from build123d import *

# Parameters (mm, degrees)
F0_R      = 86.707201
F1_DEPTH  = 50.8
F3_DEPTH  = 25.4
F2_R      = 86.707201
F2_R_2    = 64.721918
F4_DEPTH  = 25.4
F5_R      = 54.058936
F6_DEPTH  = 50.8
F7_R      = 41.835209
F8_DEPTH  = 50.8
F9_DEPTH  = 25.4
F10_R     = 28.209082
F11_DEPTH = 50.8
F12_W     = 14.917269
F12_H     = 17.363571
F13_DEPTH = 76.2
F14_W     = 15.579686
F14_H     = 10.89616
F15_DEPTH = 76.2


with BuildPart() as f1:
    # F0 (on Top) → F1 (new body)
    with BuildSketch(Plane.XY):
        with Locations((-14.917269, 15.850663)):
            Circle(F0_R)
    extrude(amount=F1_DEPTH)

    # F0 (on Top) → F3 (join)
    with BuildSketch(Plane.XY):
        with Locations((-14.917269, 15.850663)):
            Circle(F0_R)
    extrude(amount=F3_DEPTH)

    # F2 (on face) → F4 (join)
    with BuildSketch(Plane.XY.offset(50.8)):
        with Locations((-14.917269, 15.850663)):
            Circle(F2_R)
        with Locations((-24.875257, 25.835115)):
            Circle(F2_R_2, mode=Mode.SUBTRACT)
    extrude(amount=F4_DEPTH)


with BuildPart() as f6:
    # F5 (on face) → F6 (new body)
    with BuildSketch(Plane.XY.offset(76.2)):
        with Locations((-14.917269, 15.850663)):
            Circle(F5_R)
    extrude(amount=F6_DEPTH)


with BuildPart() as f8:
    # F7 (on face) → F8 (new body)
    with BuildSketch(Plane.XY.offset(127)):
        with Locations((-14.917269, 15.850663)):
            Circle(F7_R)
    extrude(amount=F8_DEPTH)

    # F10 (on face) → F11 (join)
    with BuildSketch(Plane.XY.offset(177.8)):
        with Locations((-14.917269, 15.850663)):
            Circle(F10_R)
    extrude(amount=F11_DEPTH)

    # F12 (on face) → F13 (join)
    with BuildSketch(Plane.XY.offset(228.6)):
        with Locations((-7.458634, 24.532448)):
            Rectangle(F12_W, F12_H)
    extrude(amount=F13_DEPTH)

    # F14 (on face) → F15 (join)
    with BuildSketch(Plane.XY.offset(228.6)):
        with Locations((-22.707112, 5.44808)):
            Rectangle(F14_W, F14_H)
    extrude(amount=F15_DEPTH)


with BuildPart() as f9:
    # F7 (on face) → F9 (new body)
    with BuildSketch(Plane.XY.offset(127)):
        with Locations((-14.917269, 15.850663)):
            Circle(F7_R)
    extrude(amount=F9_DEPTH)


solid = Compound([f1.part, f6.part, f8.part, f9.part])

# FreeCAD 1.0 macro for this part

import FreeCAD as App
import Part
import Sketcher

V = App.Vector
Q = App.Units.Quantity


def add_polygon(sketch, points):
    """Adds a closed chain of lines whose ends are joined by coincident constraints."""
    first, n = sketch.GeometryCount, len(points)
    for a, b in zip(points, points[1:] + points[:1]):
        sketch.addGeometry(Part.LineSegment(App.Vector(*a, 0), App.Vector(*b, 0)), False)
    for i in range(n):
        sketch.addConstraint(Sketcher.Constraint("Coincident", first + i, 2, first + (i + 1) % n, 1))

doc = App.newDocument("Part")
body = doc.addObject("PartDesign::Body", "Body")

# Sketch on XY plane
sketch1 = body.newObject("Sketcher::SketchObject", "Sketch")
sketch1.AttachmentSupport = (doc.getObject("XY_Plane"), [""])
sketch1.MapMode = "FlatFace"
sketch1.addGeometry(Part.Circle(V(-15, 16, 0), V(0, 0, 1), 87), False)
sketch1.addConstraint([
    Sketcher.Constraint("Diameter", 0, 173.414402),
    Sketcher.Constraint("DistanceX", 0, 3, -1, 1, 14.917269),
    Sketcher.Constraint("DistanceY", -1, 1, 0, 3, 15.850663),
])
pad1 = body.newObject("PartDesign::Pad", "Pad")
pad1.Profile = sketch1
pad1.Length = Q("2 in")

# Sketch on XY plane
sketch2 = body.newObject("Sketcher::SketchObject", "Sketch001")
sketch2.AttachmentSupport = (doc.getObject("XY_Plane"), [""])
sketch2.MapMode = "FlatFace"
sketch2.addGeometry(Part.Circle(V(-15, 16, 0), V(0, 0, 1), 87), False)
sketch2.addConstraint([
    Sketcher.Constraint("Diameter", 0, 173.414402),
    Sketcher.Constraint("DistanceX", 0, 3, -1, 1, 14.917269),
    Sketcher.Constraint("DistanceY", -1, 1, 0, 3, 15.850663),
])
pad2 = body.newObject("PartDesign::Pad", "Pad001")
pad2.Profile = sketch2
pad2.Length = Q("1 in")

# Sketch on XY plane
sketch3 = body.newObject("Sketcher::SketchObject", "Sketch002")
sketch3.AttachmentSupport = (doc.getObject("XY_Plane"), [""])
sketch3.MapMode = "FlatFace"
sketch3.AttachmentOffset = App.Placement(V(0, 0, 2 * 25.4), App.Rotation())
sketch3.addGeometry([
    Part.Circle(V(-15, 16, 0), V(0, 0, 1), 87),
    Part.Circle(V(-25, 26, 0), V(0, 0, 1), 65),
], False)
sketch3.addConstraint([
    Sketcher.Constraint("Diameter", 0, 173.414402),
    Sketcher.Constraint("Diameter", 1, 129.443836),
    Sketcher.Constraint("DistanceX", 0, 3, -1, 1, 14.917269),
    Sketcher.Constraint("DistanceX", 1, 3, 0, 3, 9.957988),
    Sketcher.Constraint("DistanceY", 0, 3, 1, 3, 9.984452),
    Sketcher.Constraint("DistanceY", -1, 1, 0, 3, 15.850663),
])
pad3 = body.newObject("PartDesign::Pad", "Pad002")
pad3.Profile = sketch3
pad3.Length = Q("1 in")
body2 = doc.addObject("PartDesign::Body", "Body001")

# Sketch on XY plane
sketch4 = body2.newObject("Sketcher::SketchObject", "Sketch003")
sketch4.AttachmentSupport = (doc.getObject("XY_Plane001"), [""])
sketch4.MapMode = "FlatFace"
sketch4.AttachmentOffset = App.Placement(V(0, 0, 3 * 25.4), App.Rotation())
sketch4.addGeometry(Part.Circle(V(-15, 16, 0), V(0, 0, 1), 54), False)
sketch4.addConstraint([
    Sketcher.Constraint("Diameter", 0, 108.117872),
    Sketcher.Constraint("DistanceX", 0, 3, -1, 1, 14.917269),
    Sketcher.Constraint("DistanceY", -1, 1, 0, 3, 15.850663),
])
pad4 = body2.newObject("PartDesign::Pad", "Pad003")
pad4.Profile = sketch4
pad4.Length = Q("2 in")
body3 = doc.addObject("PartDesign::Body", "Body002")

# Sketch on XY plane
sketch5 = body3.newObject("Sketcher::SketchObject", "Sketch004")
sketch5.AttachmentSupport = (doc.getObject("XY_Plane002"), [""])
sketch5.MapMode = "FlatFace"
sketch5.AttachmentOffset = App.Placement(V(0, 0, 5 * 25.4), App.Rotation())
sketch5.addGeometry(Part.Circle(V(-15, 16, 0), V(0, 0, 1), 42), False)
sketch5.addConstraint([
    Sketcher.Constraint("Diameter", 0, 83.670418),
    Sketcher.Constraint("DistanceX", 0, 3, -1, 1, 14.917269),
    Sketcher.Constraint("DistanceY", -1, 1, 0, 3, 15.850663),
])
pad5 = body3.newObject("PartDesign::Pad", "Pad004")
pad5.Profile = sketch5
pad5.Length = Q("2 in")

# Sketch on XY plane
sketch6 = body3.newObject("Sketcher::SketchObject", "Sketch005")
sketch6.AttachmentSupport = (doc.getObject("XY_Plane002"), [""])
sketch6.MapMode = "FlatFace"
sketch6.AttachmentOffset = App.Placement(V(0, 0, 7 * 25.4), App.Rotation())
sketch6.addGeometry(Part.Circle(V(-15, 16, 0), V(0, 0, 1), 28), False)
sketch6.addConstraint([
    Sketcher.Constraint("Diameter", 0, 56.418164),
    Sketcher.Constraint("DistanceX", 0, 3, -1, 1, 14.917269),
    Sketcher.Constraint("DistanceY", -1, 1, 0, 3, 15.850663),
])
pad6 = body3.newObject("PartDesign::Pad", "Pad005")
pad6.Profile = sketch6
pad6.Length = Q("2 in")

# Sketch on XY plane
sketch7 = body3.newObject("Sketcher::SketchObject", "Sketch006")
sketch7.AttachmentSupport = (doc.getObject("XY_Plane002"), [""])
sketch7.MapMode = "FlatFace"
sketch7.AttachmentOffset = App.Placement(V(0, 0, 9 * 25.4), App.Rotation())
add_polygon(sketch7, [(-15, 33), (-15, 16), (0, 16), (0, 33)])  # lines 0-3
sketch7.addConstraint([
    Sketcher.Constraint("Vertical", 0),
    Sketcher.Constraint("Horizontal", 1),
    Sketcher.Constraint("Vertical", 2),
    Sketcher.Constraint("Horizontal", 3),
    Sketcher.Constraint("PointOnObject", 1, 2, -2),
    Sketcher.Constraint("DistanceX", 1, 1, 1, 2, 14.917269),
    Sketcher.Constraint("DistanceY", 0, 2, 0, 1, 17.363571),
    Sketcher.Constraint("DistanceY", -1, 1, 0, 2, 15.850663),
])
pad7 = body3.newObject("PartDesign::Pad", "Pad006")
pad7.Profile = sketch7
pad7.Length = Q("3 in")

# Sketch on XY plane
sketch8 = body3.newObject("Sketcher::SketchObject", "Sketch007")
sketch8.AttachmentSupport = (doc.getObject("XY_Plane002"), [""])
sketch8.MapMode = "FlatFace"
sketch8.AttachmentOffset = App.Placement(V(0, 0, 9 * 25.4), App.Rotation())
add_polygon(sketch8, [(-30, 11), (-30, 0), (-15, 0), (-15, 11)])  # lines 0-3
sketch8.addConstraint([
    Sketcher.Constraint("Vertical", 0),
    Sketcher.Constraint("Horizontal", 1),
    Sketcher.Constraint("Vertical", 2),
    Sketcher.Constraint("Horizontal", 3),
    Sketcher.Constraint("PointOnObject", 0, 2, -1),
    Sketcher.Constraint("DistanceY", 0, 2, 0, 1, 10.89616),
    Sketcher.Constraint("DistanceX", 1, 1, 1, 2, 15.579686),
    Sketcher.Constraint("DistanceX", 1, 2, -1, 1, 14.917269),
])
pad8 = body3.newObject("PartDesign::Pad", "Pad007")
pad8.Profile = sketch8
pad8.Length = Q("3 in")
body4 = doc.addObject("PartDesign::Body", "Body003")

# Sketch on XY plane
sketch9 = body4.newObject("Sketcher::SketchObject", "Sketch008")
sketch9.AttachmentSupport = (doc.getObject("XY_Plane003"), [""])
sketch9.MapMode = "FlatFace"
sketch9.AttachmentOffset = App.Placement(V(0, 0, 5 * 25.4), App.Rotation())
sketch9.addGeometry(Part.Circle(V(-15, 16, 0), V(0, 0, 1), 42), False)
sketch9.addConstraint([
    Sketcher.Constraint("Diameter", 0, 83.670418),
    Sketcher.Constraint("DistanceX", 0, 3, -1, 1, 14.917269),
    Sketcher.Constraint("DistanceY", -1, 1, 0, 3, 15.850663),
])
pad9 = body4.newObject("PartDesign::Pad", "Pad008")
pad9.Profile = sketch9
pad9.Length = Q("1 in")

doc.recompute()
